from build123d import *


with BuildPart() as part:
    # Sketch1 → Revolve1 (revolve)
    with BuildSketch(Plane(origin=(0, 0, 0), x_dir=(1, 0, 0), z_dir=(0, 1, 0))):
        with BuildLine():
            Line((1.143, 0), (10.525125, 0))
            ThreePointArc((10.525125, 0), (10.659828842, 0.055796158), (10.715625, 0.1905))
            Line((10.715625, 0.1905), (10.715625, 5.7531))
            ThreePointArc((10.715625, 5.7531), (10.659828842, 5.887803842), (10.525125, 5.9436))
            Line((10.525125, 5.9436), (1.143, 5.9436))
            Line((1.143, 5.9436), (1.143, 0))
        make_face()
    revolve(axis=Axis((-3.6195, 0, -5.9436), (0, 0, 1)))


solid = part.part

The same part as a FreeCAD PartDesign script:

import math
import FreeCAD as App
import Part
import Sketcher

V = App.Vector
Q = App.Units.Quantity

doc = App.newDocument("Part")
body = doc.addObject("PartDesign::Body", "Body")

# Sketch on XZ plane
sketch1 = doc.addObject("Sketcher::SketchObject", "Sketch")
body.addObject(sketch1)
sketch1.AttachmentSupport = (doc.XZ_Plane, [""])
sketch1.MapMode = "FlatFace"
sketch1.addGeometry([
    Part.LineSegment(V(1.143, 0, 0), V(10.525125, 0, 0)),  # 0
    Part.ArcOfCircle(Part.Circle(V(10.525125, -0.1905, 0), V(0, 0, 1), 0.1905), math.radians(0), math.radians(90)),  # 1
    Part.LineSegment(V(10.715625, -0.1905, 0), V(10.715625, -5.7531, 0)),  # 2
    Part.ArcOfCircle(Part.Circle(V(10.525125, -5.7531, 0), V(0, 0, 1), 0.1905), math.radians(-90), math.radians(0)),  # 3
    Part.LineSegment(V(10.525125, -5.9436, 0), V(1.143, -5.9436, 0)),  # 4
    Part.LineSegment(V(1.143, -5.9436, 0), V(1.143, 0, 0)),  # 5
], False)
sketch1.addGeometry(Part.LineSegment(V(-3.6195, -5.9436, 0), V(-3.6195, 0, 0)), True)  # axis
sketch1.addConstraint([
    Sketcher.Constraint("Tangent", 0, 2, 1, 2),
    Sketcher.Constraint("Tangent", 1, 1, 2, 1),
    Sketcher.Constraint("Tangent", 2, 2, 3, 2),
    Sketcher.Constraint("Tangent", 3, 1, 4, 1),
    Sketcher.Constraint("Coincident", 4, 2, 5, 1),
    Sketcher.Constraint("Coincident", 5, 2, 0, 1),
    Sketcher.Constraint("Horizontal", 0),
    Sketcher.Constraint("Vertical", 2),
    Sketcher.Constraint("Horizontal", 4),
    Sketcher.Constraint("Vertical", 5),
    Sketcher.Constraint("Vertical", 6),
    Sketcher.Constraint("Equal", 1, 3),
    Sketcher.Constraint("PointOnObject", 0, 2, -1),
    Sketcher.Constraint("PointOnObject", 6, 2, -1),
    Sketcher.Constraint("Horizontal", 4, 2, 6, 1),
    Sketcher.Constraint("Radius", 1, Q("0.0075 in")),
    Sketcher.Constraint("DistanceY", 2, 2, 2, 1, Q("0.219 in")),
    Sketcher.Constraint("DistanceX", -1, 1, 1, 1, Q("0.421875 in")),
    Sketcher.Constraint("DistanceX", -1, 1, 4, 2, Q("0.045 in")),
    Sketcher.Constraint("DistanceX", 6, 1, 4, 2, Q("0.1875 in")),
])
revolution = doc.addObject("PartDesign::Revolution", "Revolution")
body.addObject(revolution)
revolution.Profile = sketch1
revolution.ReferenceAxis = (sketch1, ["Axis0"])
revolution.Angle = 360

doc.recompute()
